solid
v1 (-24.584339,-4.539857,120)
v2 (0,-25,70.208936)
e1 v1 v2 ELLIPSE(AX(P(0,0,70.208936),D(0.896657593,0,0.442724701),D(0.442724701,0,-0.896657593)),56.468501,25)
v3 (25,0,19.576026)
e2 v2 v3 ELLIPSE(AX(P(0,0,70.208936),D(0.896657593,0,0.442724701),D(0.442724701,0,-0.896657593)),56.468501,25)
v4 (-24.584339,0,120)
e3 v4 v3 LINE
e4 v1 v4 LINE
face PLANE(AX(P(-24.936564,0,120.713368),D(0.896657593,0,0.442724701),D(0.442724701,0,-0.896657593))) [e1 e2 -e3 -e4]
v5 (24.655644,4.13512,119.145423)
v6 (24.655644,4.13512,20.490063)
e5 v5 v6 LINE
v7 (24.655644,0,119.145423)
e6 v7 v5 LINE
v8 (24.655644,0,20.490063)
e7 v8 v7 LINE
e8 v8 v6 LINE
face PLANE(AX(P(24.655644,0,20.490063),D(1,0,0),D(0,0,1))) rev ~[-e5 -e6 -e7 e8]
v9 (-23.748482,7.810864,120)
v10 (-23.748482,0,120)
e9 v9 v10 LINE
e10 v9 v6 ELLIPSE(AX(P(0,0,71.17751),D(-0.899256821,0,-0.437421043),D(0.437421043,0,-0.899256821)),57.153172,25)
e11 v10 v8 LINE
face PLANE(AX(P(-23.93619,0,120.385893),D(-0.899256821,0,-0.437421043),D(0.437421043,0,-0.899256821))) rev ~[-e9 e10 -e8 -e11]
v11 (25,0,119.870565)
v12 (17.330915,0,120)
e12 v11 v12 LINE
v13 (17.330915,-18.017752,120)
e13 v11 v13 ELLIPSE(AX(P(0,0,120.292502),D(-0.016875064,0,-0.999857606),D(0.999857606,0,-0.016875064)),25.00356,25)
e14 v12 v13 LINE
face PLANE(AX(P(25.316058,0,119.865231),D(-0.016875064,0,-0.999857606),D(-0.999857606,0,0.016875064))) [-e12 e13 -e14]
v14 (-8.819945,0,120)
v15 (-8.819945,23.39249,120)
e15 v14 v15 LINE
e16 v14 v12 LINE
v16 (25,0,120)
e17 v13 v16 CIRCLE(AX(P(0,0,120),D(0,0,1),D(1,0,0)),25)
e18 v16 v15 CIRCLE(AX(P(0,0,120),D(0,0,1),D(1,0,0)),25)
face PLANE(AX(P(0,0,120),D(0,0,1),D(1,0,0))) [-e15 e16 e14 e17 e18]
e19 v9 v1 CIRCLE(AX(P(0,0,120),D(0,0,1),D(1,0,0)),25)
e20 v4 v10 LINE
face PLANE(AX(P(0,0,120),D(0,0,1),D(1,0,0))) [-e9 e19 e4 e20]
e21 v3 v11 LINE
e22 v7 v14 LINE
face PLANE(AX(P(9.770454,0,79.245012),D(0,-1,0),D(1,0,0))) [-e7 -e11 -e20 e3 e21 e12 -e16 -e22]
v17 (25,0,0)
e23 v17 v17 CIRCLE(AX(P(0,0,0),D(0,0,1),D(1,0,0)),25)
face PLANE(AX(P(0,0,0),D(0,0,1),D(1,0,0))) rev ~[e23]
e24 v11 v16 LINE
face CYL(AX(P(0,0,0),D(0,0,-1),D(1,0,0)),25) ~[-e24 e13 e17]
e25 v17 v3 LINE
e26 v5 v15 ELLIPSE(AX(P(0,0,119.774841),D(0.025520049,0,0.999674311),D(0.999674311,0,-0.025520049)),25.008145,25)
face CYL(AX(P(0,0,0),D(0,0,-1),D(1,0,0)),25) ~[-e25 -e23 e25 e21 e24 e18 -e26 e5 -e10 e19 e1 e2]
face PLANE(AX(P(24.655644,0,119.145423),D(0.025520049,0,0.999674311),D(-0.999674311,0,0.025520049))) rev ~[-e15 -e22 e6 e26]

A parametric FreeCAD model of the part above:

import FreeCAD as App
import Part
import Sketcher

V = App.Vector

doc = App.newDocument("Part")
params = doc.addObject("Spreadsheet::Sheet", "Params")
for row, (alias, value) in enumerate([
    ("sketch1_diameter", "50 mm"),
    ("pad1_length", "120 mm"),
    ("pocket1_length", "25 mm"),
    ("pocket2_length", "145 mm"),
], start=1):
    params.set(f"A{row}", alias)
    params.set(f"B{row}", "=" + value)
    params.setAlias(f"B{row}", alias)

body = doc.addObject("PartDesign::Body", "Body")

sketch1 = body.newObject("Sketcher::SketchObject", "Sketch")
sketch1.AttachmentSupport = (doc.getObject("XY_Plane"), [""])
sketch1.MapMode = "FlatFace"
sketch1.addGeometry(Part.Circle(V(0, 0, 0), V(0, 0, 1), 25), False)
sketch1.addConstraint(Sketcher.Constraint("Coincident", 0, 3, -1, 1))
sketch1.addConstraint(Sketcher.Constraint("Diameter", 0, 50.0))
sketch1.setExpression("Constraints[1]", "Params.sketch1_diameter")
pad1 = body.newObject("PartDesign::Pad", "Pad")
pad1.Profile = sketch1
pad1.setExpression("Length", "Params.pad1_length")

sketch2 = body.newObject("Sketcher::SketchObject", "Sketch001")
sketch2.AttachmentSupport = (doc.getObject("XZ_Plane"), [""])
sketch2.MapMode = "FlatFace"
sketch2.addGeometry(Part.LineSegment(V(25.316058, 119.865231, 0), V(-24.936564, 120.713368, 0)), False)
sketch2.addGeometry(Part.LineSegment(V(-24.936564, 120.713368, 0), V(25.316058, 18.935909, 0)), False)
sketch2.addGeometry(Part.LineSegment(V(25.316058, 18.935909, 0), V(25.316058, 119.865231, 0)), False)
sketch2.addConstraint(Sketcher.Constraint("Coincident", 0, 2, 1, 1))
sketch2.addConstraint(Sketcher.Constraint("Coincident", 1, 2, 2, 1))
sketch2.addConstraint(Sketcher.Constraint("Coincident", 2, 2, 0, 1))
sketch2.addConstraint(Sketcher.Constraint("Vertical", 2))
sketch2.addConstraint(Sketcher.Constraint("DistanceY", 2, 1, 2, 2, 100.929322))
sketch2.addConstraint(Sketcher.Constraint("Distance", 0, 50.259779))
sketch2.addConstraint(Sketcher.Constraint("Distance", 1, 113.507608))
sketch2.addConstraint(Sketcher.Constraint("DistanceY", -1, 1, 0, 2, 120.713368))
sketch2.addConstraint(Sketcher.Constraint("DistanceX", -1, 1, 1, 2, 25.316058))
pocket1 = body.newObject("PartDesign::Pocket", "Pocket")
pocket1.Profile = sketch2
pocket1.setExpression("Length", "Params.pocket1_length")
pocket1.Reversed = True

sketch3 = body.newObject("Sketcher::SketchObject", "Sketch002")
sketch3.AttachmentSupport = (doc.getObject("XZ_Plane"), [""])
sketch3.MapMode = "FlatFace"
sketch3.addGeometry(Part.LineSegment(V(24.655644, 119.145423, 0), V(-23.93619, 120.385893, 0)), False)
sketch3.addGeometry(Part.LineSegment(V(-23.93619, 120.385893, 0), V(24.655644, 20.490063, 0)), False)
sketch3.addGeometry(Part.LineSegment(V(24.655644, 20.490063, 0), V(24.655644, 119.145423, 0)), False)
sketch3.addConstraint(Sketcher.Constraint("Coincident", 0, 2, 1, 1))
sketch3.addConstraint(Sketcher.Constraint("Coincident", 1, 2, 2, 1))
sketch3.addConstraint(Sketcher.Constraint("Coincident", 2, 2, 0, 1))
sketch3.addConstraint(Sketcher.Constraint("Vertical", 2))
sketch3.addConstraint(Sketcher.Constraint("DistanceY", 2, 1, 2, 2, 98.65536))
sketch3.addConstraint(Sketcher.Constraint("DistanceX", 0, 2, -1, 1, 23.93619))
sketch3.addConstraint(Sketcher.Constraint("DistanceY", 1, 2, 0, 2, 99.89583))
sketch3.addConstraint(Sketcher.Constraint("Distance", 0, 48.607665))
sketch3.addConstraint(Sketcher.Constraint("DistanceY", -1, 1, 0, 2, 120.385893))
pocket2 = body.newObject("PartDesign::Pocket", "Pocket001")
pocket2.Profile = sketch3
pocket2.setExpression("Length", "Params.pocket2_length")

doc.recompute()
